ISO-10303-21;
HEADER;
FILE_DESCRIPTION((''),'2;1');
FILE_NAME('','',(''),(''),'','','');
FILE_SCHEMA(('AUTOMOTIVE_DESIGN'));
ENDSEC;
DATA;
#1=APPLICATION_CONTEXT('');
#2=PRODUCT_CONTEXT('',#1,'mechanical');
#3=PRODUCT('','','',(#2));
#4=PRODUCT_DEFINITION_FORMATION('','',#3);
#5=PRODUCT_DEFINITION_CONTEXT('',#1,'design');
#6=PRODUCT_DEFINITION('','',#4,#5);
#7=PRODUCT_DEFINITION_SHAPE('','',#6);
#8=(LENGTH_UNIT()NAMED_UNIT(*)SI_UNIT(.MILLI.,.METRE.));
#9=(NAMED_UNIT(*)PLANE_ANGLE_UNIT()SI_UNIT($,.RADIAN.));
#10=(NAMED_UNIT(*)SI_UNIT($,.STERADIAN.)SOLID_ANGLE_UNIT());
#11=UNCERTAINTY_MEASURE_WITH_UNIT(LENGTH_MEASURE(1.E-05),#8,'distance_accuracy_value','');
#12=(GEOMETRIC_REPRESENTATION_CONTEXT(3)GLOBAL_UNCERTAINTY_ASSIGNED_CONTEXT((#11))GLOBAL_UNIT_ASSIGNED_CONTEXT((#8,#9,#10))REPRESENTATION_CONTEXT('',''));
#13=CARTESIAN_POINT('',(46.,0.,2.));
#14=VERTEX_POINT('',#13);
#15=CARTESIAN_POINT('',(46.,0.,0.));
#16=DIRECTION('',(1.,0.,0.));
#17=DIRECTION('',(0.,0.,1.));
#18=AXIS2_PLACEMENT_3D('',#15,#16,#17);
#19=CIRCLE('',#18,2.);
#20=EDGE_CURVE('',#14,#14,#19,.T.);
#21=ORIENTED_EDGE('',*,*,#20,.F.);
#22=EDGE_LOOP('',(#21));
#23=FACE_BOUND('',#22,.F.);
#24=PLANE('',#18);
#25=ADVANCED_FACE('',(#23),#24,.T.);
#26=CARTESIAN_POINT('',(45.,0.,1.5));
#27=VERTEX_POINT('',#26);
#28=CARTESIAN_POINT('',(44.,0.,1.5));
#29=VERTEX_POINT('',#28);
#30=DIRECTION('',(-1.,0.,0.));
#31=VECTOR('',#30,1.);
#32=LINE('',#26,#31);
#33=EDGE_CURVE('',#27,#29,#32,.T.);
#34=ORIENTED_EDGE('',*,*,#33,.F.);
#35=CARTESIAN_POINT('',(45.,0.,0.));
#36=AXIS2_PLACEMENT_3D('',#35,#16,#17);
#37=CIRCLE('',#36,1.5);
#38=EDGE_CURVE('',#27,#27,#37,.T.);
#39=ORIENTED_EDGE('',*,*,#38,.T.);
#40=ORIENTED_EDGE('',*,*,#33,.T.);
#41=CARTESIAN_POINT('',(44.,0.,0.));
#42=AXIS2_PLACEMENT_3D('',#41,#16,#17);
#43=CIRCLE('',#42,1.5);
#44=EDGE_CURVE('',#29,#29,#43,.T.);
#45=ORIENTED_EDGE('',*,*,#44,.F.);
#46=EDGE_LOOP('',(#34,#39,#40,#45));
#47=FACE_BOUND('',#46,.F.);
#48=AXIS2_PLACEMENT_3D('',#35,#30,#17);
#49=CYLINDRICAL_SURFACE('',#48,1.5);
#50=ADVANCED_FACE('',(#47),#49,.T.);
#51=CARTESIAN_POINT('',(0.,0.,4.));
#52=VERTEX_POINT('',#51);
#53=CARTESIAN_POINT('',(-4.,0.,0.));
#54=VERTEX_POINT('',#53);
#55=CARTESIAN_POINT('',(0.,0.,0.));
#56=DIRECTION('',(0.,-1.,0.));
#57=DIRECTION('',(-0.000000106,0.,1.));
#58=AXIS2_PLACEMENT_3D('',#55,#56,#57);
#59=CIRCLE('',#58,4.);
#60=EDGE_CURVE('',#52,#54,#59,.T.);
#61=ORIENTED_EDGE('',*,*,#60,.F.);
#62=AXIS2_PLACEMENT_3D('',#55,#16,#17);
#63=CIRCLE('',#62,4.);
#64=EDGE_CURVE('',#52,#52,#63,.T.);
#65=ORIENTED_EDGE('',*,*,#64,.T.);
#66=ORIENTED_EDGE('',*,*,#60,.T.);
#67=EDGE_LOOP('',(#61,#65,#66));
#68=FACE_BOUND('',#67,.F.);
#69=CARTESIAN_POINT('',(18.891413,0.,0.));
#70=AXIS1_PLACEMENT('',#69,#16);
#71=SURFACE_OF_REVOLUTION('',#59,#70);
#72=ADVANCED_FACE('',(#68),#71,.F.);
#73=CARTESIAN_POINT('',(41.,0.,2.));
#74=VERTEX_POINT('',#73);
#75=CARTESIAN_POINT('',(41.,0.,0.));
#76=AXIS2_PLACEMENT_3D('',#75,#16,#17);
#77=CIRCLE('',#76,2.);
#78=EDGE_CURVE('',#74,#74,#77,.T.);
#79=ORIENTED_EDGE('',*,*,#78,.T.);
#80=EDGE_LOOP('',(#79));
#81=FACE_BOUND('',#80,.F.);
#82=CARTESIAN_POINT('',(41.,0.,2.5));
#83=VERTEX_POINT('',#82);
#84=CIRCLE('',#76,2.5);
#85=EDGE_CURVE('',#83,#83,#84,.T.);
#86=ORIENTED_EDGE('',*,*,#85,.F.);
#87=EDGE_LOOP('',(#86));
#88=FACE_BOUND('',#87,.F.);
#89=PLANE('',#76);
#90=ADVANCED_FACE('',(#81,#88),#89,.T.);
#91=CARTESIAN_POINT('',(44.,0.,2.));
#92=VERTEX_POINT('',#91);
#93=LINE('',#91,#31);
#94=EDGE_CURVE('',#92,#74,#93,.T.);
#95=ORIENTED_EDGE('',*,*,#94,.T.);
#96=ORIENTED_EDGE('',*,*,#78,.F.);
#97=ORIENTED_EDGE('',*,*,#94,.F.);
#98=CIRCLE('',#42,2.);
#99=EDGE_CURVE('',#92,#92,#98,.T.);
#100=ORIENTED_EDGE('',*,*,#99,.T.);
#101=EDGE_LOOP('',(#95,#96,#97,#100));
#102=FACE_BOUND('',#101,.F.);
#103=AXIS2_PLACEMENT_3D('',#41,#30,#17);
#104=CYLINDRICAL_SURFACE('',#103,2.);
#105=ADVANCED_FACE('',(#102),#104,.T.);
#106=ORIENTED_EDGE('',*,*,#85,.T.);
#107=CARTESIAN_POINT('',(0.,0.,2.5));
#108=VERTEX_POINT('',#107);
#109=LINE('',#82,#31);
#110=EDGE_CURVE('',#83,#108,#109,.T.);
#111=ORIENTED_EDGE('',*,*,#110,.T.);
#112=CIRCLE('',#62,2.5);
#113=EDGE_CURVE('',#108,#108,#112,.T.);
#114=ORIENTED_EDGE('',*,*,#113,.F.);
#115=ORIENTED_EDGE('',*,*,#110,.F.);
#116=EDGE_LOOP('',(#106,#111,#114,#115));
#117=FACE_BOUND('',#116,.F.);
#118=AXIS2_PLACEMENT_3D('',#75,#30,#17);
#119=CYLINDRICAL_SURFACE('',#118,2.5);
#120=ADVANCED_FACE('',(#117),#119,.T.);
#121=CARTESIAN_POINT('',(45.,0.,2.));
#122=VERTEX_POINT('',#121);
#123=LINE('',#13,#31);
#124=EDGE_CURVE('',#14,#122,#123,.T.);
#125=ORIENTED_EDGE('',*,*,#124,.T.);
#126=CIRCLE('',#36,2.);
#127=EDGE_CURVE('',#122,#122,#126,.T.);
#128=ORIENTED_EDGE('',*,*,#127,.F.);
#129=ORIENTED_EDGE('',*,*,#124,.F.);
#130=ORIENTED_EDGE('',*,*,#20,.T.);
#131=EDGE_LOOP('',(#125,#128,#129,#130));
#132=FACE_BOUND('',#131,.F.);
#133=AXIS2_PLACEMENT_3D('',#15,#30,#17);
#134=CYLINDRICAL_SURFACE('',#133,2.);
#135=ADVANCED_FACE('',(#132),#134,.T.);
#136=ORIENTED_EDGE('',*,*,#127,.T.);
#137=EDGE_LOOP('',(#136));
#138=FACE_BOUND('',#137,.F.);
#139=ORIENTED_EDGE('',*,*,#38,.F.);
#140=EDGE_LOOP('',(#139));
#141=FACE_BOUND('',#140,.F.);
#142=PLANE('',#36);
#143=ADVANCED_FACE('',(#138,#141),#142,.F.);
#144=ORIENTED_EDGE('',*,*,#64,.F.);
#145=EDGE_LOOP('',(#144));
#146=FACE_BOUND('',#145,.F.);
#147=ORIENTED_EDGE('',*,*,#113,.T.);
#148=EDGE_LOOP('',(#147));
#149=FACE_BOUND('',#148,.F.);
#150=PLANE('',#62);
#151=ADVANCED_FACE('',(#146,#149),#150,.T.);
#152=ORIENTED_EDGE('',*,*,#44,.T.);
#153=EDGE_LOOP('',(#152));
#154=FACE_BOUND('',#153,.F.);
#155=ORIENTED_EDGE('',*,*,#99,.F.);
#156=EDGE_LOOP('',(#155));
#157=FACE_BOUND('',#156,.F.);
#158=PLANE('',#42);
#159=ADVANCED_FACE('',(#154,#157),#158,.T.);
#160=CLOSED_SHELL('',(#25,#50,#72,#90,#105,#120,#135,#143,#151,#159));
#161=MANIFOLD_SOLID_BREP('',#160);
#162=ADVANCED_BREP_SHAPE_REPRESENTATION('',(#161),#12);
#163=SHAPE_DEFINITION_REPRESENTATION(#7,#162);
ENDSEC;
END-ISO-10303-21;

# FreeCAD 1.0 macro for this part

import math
import FreeCAD as App
import Part
import Sketcher
from FreeCAD import Vector
Q = App.Units.Quantity

doc = App.newDocument("Part")
params = doc.addObject("Spreadsheet::Sheet", "Params")
for row, (alias, value) in enumerate([
    ("sketch1_radius", "4 mm"),
    ("sketch1_width", "41 mm"),
    ("sketch1_width2", "50 mm"),
    ("sketch1_width3", "1 mm"),
    ("sketch1_height", "2 mm"),
    ("revolution_angle", "360 deg"),
], start=1):
    params.set(f"A{row}", alias)
    params.set(f"B{row}", "=" + value)
    params.setAlias(f"B{row}", alias)

body = doc.addObject("PartDesign::Body", "Body")

# Sketch on XZ plane
sketch1 = doc.addObject("Sketcher::SketchObject", "Sketch")
body.addObject(sketch1)
sketch1.AttachmentSupport = (doc.XZ_Plane, [""])
sketch1.MapMode = "FlatFace"
sketch1.addGeometry([
    Part.LineSegment(Vector(41, 2.5, 0), Vector(0, 2.5, 0)),  # 0
    Part.LineSegment(Vector(0, 2.5, 0), Vector(0, 4, 0)),  # 1
    Part.ArcOfCircle(Part.Circle(Vector(0, 0, 0), Vector(0, 0, 1), 4), math.radians(90), math.radians(180)),  # 2
    Part.LineSegment(Vector(-4, 0, 0), Vector(46, 0, 0)),  # 3
    Part.LineSegment(Vector(46, 0, 0), Vector(46, 2, 0)),  # 4
    Part.LineSegment(Vector(46, 2, 0), Vector(45, 2, 0)),  # 5
    Part.LineSegment(Vector(45, 2, 0), Vector(45, 1.5, 0)),  # 6
    Part.LineSegment(Vector(45, 1.5, 0), Vector(44, 1.5, 0)),  # 7
    Part.LineSegment(Vector(44, 1.5, 0), Vector(44, 2, 0)),  # 8
    Part.LineSegment(Vector(44, 2, 0), Vector(41, 2, 0)),  # 9
    Part.LineSegment(Vector(41, 2, 0), Vector(41, 2.5, 0)),  # 10
], False)
sketch1.addConstraint([
    Sketcher.Constraint("Coincident", 0, 2, 1, 1),
    Sketcher.Constraint("Coincident", 1, 2, 2, 1),
    Sketcher.Constraint("Coincident", 2, 2, 3, 1),
    Sketcher.Constraint("Coincident", 3, 2, 4, 1),
    Sketcher.Constraint("Coincident", 4, 2, 5, 1),
    Sketcher.Constraint("Coincident", 5, 2, 6, 1),
    Sketcher.Constraint("Coincident", 6, 2, 7, 1),
    Sketcher.Constraint("Coincident", 7, 2, 8, 1),
    Sketcher.Constraint("Coincident", 8, 2, 9, 1),
    Sketcher.Constraint("Coincident", 9, 2, 10, 1),
    Sketcher.Constraint("Coincident", 10, 2, 0, 1),
    Sketcher.Constraint("Horizontal", 0),
    Sketcher.Constraint("Vertical", 1),
    Sketcher.Constraint("Horizontal", 3),
    Sketcher.Constraint("Vertical", 4),
    Sketcher.Constraint("Horizontal", 5),
    Sketcher.Constraint("Vertical", 6),
    Sketcher.Constraint("Horizontal", 7),
    Sketcher.Constraint("Vertical", 8),
    Sketcher.Constraint("Horizontal", 9),
    Sketcher.Constraint("Vertical", 10),
    Sketcher.Constraint("Coincident", 2, 3, -1, 1),
    Sketcher.Constraint("PointOnObject", 0, 2, -2),
    Sketcher.Constraint("PointOnObject", 2, 2, -1),
    Sketcher.Constraint("Horizontal", 5, 2, 8, 2),
    Sketcher.Constraint("Equal", 5, 7),
    Sketcher.Constraint("Equal", 8, 10),
    Sketcher.Constraint("Radius", 2, Q("4 mm")),
    Sketcher.Constraint("DistanceX", 0, 2, 0, 1, Q("41 mm")),
    Sketcher.Constraint("DistanceX", 3, 1, 3, 2, Q("50 mm")),
    Sketcher.Constraint("DistanceX", 5, 2, 5, 1, Q("1 mm")),
    Sketcher.Constraint("DistanceY", 4, 1, 4, 2, Q("2 mm")),
    Sketcher.Constraint("DistanceY", 1, 1, 1, 2, Q("1.5 mm")),
])
sketch1.setExpression("Constraints[27]", "Params.sketch1_radius")
sketch1.setExpression("Constraints[28]", "Params.sketch1_width")
sketch1.setExpression("Constraints[29]", "Params.sketch1_width2")
sketch1.setExpression("Constraints[30]", "Params.sketch1_width3")
sketch1.setExpression("Constraints[31]", "Params.sketch1_height")
revolution = doc.addObject("PartDesign::Revolution", "Revolution")
body.addObject(revolution)
revolution.Profile = sketch1
revolution.ReferenceAxis = (sketch1, ["H_Axis"])
revolution.setExpression("Angle", "Params.revolution_angle")

doc.recompute()
